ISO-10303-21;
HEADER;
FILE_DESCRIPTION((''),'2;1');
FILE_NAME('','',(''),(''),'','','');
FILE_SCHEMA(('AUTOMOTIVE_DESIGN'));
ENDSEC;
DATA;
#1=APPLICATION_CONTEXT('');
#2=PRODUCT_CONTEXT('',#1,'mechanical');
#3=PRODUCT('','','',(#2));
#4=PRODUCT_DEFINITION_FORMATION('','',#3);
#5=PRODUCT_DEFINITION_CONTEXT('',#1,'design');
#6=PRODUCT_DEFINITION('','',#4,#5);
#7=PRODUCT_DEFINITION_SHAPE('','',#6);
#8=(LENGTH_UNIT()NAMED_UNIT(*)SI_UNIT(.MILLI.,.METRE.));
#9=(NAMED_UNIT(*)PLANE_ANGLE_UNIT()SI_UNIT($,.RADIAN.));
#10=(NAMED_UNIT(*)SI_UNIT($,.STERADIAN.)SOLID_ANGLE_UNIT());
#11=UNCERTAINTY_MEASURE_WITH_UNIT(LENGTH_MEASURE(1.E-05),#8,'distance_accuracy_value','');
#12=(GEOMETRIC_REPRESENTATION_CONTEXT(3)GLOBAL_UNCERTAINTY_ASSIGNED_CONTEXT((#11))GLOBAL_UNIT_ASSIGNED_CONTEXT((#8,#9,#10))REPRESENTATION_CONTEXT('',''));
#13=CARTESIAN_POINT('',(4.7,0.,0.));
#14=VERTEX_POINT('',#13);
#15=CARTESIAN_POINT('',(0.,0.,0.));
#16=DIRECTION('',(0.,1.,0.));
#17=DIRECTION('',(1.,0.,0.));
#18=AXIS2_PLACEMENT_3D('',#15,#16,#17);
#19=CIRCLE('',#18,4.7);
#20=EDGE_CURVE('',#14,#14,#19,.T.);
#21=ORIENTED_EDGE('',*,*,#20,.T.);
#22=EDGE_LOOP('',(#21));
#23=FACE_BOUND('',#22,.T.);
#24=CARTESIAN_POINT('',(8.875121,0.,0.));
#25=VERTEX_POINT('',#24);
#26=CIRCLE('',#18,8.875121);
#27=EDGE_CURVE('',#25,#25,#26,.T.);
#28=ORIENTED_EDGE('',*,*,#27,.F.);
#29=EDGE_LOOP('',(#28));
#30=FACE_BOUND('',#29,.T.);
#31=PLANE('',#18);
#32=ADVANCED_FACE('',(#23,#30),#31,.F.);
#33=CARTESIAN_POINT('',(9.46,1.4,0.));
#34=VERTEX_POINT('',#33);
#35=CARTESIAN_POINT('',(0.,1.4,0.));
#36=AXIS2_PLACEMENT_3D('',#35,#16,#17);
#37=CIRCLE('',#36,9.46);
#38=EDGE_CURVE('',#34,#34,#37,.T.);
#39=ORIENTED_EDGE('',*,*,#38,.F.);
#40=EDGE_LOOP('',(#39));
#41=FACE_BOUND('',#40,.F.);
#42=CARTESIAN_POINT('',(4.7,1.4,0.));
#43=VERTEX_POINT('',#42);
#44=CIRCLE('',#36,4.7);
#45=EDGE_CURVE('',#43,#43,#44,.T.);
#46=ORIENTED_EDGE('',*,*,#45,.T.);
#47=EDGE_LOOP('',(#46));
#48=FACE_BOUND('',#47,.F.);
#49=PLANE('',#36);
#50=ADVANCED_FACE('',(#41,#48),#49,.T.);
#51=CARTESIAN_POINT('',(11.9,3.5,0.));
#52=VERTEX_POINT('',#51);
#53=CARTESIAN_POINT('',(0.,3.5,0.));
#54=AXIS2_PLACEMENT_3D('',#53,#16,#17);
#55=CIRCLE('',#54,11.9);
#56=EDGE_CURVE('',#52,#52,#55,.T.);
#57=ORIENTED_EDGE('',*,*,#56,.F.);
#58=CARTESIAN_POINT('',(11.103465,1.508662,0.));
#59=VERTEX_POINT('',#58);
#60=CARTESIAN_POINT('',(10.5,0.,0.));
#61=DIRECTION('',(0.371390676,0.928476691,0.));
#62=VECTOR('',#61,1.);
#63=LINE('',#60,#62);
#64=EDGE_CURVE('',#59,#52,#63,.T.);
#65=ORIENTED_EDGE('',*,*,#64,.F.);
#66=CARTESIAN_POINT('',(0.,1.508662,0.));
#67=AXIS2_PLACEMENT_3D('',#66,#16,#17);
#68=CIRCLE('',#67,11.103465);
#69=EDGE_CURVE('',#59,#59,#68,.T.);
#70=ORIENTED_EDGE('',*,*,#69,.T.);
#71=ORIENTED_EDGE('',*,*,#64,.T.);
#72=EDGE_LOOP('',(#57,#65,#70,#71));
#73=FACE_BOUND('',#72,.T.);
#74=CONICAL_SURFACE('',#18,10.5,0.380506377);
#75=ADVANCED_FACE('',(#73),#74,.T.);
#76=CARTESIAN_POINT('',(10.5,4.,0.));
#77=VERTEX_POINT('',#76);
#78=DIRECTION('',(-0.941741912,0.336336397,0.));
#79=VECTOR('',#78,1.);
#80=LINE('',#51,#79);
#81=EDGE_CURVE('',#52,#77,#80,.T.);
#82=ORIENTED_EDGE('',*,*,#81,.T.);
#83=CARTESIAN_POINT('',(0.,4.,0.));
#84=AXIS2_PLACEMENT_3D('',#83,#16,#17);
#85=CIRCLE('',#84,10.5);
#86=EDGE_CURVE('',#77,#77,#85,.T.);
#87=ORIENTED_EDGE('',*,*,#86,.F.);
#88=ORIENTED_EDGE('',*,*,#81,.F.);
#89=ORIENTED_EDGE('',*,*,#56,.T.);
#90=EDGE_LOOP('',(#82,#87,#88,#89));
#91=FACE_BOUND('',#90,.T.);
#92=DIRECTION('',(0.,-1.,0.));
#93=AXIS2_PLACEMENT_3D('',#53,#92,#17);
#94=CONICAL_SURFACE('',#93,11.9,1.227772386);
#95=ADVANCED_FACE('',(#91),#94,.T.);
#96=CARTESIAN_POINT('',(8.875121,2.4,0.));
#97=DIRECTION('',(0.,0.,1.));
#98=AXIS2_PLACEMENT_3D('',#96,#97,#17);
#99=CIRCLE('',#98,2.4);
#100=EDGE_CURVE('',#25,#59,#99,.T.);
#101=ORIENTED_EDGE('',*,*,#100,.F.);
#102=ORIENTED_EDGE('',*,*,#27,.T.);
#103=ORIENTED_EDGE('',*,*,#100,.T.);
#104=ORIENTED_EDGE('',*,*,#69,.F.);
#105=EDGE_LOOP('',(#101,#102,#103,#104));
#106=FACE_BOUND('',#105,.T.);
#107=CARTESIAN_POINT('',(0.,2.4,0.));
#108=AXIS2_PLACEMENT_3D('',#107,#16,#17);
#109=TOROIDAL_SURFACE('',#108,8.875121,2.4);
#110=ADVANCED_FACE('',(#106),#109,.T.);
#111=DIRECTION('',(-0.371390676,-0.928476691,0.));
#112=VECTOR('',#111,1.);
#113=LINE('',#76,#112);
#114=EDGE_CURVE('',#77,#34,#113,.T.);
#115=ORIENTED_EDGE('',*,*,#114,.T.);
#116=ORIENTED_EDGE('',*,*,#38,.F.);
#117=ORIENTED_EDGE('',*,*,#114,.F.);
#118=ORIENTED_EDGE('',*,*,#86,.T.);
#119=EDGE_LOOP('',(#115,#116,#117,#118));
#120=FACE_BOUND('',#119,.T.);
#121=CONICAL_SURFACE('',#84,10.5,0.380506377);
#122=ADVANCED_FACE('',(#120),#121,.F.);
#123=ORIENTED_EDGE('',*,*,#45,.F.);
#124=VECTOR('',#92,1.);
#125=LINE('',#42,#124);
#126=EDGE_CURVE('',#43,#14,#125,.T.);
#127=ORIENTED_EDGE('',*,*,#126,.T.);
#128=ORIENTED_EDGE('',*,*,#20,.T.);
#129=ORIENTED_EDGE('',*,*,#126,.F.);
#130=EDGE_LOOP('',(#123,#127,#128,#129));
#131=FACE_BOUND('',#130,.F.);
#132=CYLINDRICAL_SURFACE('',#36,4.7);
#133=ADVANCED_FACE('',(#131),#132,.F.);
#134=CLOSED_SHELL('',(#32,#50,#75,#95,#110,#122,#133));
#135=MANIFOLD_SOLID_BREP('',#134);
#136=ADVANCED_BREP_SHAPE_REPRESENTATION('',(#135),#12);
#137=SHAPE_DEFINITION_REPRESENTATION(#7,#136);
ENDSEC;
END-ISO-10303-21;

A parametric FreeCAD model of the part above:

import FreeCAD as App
import Part
import Sketcher
from FreeCAD import Vector
Q = App.Units.Quantity


def edges_at(feature, points):
    """Names of the edges that pass closest to the given points."""
    edges = feature.Shape.Edges
    near = lambda p: min(range(len(edges)), key=lambda i: edges[i].distToShape(Part.Vertex(*p))[0])
    return sorted({f"Edge{near(p) + 1}" for p in points})

doc = App.newDocument("Part")
body = doc.addObject("PartDesign::Body", "Body")

sketch1 = body.newObject("Sketcher::SketchObject", "Sketch")
sketch1.AttachmentSupport = (doc.getObject("XY_Plane"), [""])
sketch1.MapMode = "FlatFace"
sketch1.addGeometry(Part.LineSegment(Vector(0, 1.4, 0), Vector(0, 0, 0)), False)
sketch1.addGeometry(Part.LineSegment(Vector(0, 0, 0), Vector(10.5, 0, 0)), False)
sketch1.addGeometry(Part.LineSegment(Vector(10.5, 0, 0), Vector(11.9, 3.5, 0)), False)
sketch1.addGeometry(Part.LineSegment(Vector(11.9, 3.5, 0), Vector(10.5, 4, 0)), False)
sketch1.addGeometry(Part.LineSegment(Vector(10.5, 4, 0), Vector(9.5, 1.4, 0)), False)
sketch1.addGeometry(Part.LineSegment(Vector(9.5, 1.4, 0), Vector(0, 1.4, 0)), False)
sketch1.addConstraint(Sketcher.Constraint("Coincident", 0, 2, 1, 1))
sketch1.addConstraint(Sketcher.Constraint("Coincident", 1, 2, 2, 1))
sketch1.addConstraint(Sketcher.Constraint("Coincident", 2, 2, 3, 1))
sketch1.addConstraint(Sketcher.Constraint("Coincident", 3, 2, 4, 1))
sketch1.addConstraint(Sketcher.Constraint("Coincident", 4, 2, 5, 1))
sketch1.addConstraint(Sketcher.Constraint("Coincident", 5, 2, 0, 1))
sketch1.addConstraint(Sketcher.Constraint("Vertical", 0))
sketch1.addConstraint(Sketcher.Constraint("Horizontal", 1))
sketch1.addConstraint(Sketcher.Constraint("Horizontal", 5))
sketch1.addConstraint(Sketcher.Constraint("Coincident", 0, 2, -1, 1))
sketch1.addConstraint(Sketcher.Constraint("Parallel", 2, 4))
sketch1.addConstraint(Sketcher.Constraint("Vertical", 1, 2, 3, 2))
sketch1.addConstraint(Sketcher.Constraint("DistanceY", 0, 2, 0, 1, Q("1.4 mm")))
sketch1.addConstraint(Sketcher.Constraint("DistanceX", -1, 1, 2, 2, Q("11.9 mm")))
sketch1.addConstraint(Sketcher.Constraint("DistanceY", -1, 1, 2, 2, Q("3.5 mm")))
sketch1.addConstraint(Sketcher.Constraint("DistanceX", 1, 2, 2, 2, Q("1.4 mm")))
sketch1.addConstraint(Sketcher.Constraint("DistanceY", 2, 2, 3, 2, Q("0.5 mm")))
revolution = body.newObject("PartDesign::Revolution", "Revolution")
revolution.Profile = sketch1
revolution.ReferenceAxis = (sketch1, ["V_Axis"])
revolution.Angle = 360

sketch2 = body.newObject("Sketcher::SketchObject", "Sketch001")
sketch2.AttachmentSupport = (doc.getObject("XZ_Plane"), [""])
sketch2.MapMode = "FlatFace"
sketch2.AttachmentOffset = App.Placement(Vector(0, 0, -1.4), App.Rotation())
sketch2.addGeometry(Part.Circle(Vector(0, 0, 0), Vector(0, 0, 1), 4.7), False)
sketch2.addConstraint(Sketcher.Constraint("Coincident", 0, 3, -1, 1))
sketch2.addConstraint(Sketcher.Constraint("Diameter", 0, Q("9.4 mm")))
pocket1 = body.newObject("PartDesign::Pocket", "Pocket")
pocket1.Profile = sketch2
pocket1.Type = "ThroughAll"
pocket1.Reversed = True
doc.recompute()

fillet = body.newObject("PartDesign::Fillet", "Fillet")
fillet.Base = (pocket1, edges_at(pocket1, [(-10.5, 0, 0)]))
fillet.Radius = 2.4

doc.recompute()
